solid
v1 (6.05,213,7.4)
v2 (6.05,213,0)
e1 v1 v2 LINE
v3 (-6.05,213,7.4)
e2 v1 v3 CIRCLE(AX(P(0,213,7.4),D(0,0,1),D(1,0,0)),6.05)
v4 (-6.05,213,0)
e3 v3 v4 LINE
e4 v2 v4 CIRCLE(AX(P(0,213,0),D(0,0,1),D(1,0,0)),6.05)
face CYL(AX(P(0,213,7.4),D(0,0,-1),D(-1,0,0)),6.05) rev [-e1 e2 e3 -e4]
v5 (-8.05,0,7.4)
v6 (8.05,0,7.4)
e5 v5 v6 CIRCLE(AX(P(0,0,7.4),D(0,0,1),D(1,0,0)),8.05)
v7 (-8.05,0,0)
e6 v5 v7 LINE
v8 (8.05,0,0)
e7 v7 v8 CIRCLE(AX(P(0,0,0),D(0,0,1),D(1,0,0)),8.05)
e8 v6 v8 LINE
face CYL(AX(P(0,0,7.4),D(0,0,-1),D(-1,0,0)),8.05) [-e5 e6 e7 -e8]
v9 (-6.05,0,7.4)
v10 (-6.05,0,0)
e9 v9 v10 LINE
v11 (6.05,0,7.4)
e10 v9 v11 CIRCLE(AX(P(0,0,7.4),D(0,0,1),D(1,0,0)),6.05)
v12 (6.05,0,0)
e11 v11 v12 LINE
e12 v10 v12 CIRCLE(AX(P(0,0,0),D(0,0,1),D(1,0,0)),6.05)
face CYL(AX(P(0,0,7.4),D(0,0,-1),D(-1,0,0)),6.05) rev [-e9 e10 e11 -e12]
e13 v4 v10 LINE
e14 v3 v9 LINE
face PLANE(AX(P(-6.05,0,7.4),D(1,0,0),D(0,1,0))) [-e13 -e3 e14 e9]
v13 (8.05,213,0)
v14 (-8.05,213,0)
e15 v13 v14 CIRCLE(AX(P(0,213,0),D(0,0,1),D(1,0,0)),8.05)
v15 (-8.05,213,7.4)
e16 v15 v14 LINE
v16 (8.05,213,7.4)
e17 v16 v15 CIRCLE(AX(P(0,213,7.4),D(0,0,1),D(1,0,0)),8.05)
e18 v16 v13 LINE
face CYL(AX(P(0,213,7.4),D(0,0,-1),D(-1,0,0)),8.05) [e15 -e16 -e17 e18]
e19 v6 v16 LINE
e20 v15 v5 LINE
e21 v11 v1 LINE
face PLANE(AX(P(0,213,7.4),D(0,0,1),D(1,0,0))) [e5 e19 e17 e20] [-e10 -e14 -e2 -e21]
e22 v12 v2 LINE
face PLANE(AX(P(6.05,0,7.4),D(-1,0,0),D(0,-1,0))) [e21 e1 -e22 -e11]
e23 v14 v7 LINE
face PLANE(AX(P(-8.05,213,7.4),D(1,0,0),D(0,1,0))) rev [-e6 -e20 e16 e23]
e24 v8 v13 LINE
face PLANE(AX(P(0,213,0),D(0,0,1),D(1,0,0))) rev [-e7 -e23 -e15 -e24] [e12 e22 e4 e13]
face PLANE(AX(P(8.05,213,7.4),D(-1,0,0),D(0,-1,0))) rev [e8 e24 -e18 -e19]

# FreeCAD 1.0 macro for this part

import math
import FreeCAD as App
import Part
import Sketcher
from FreeCAD import Vector

doc = App.newDocument("Part")
body = doc.addObject("PartDesign::Body", "Body")

# Sketch on XY plane
sketch1 = doc.addObject("Sketcher::SketchObject", "Sketch")
body.addObject(sketch1)
sketch1.AttachmentSupport = (doc.XY_Plane, [""])
sketch1.MapMode = "FlatFace"
sketch1.addGeometry([
    Part.LineSegment(Vector(-8, 213, 0), Vector(-8, 0, 0)),  # 0
    Part.ArcOfCircle(Part.Circle(Vector(0, 0, 0), Vector(0, 0, 1), 8), math.radians(180), math.radians(360)),  # 1
    Part.LineSegment(Vector(8, 0, 0), Vector(8, 213, 0)),  # 2
    Part.ArcOfCircle(Part.Circle(Vector(0, 213, 0), Vector(0, 0, 1), 8), math.radians(0), math.radians(180)),  # 3
    Part.ArcOfCircle(Part.Circle(Vector(0, 0, 0), Vector(0, 0, 1), 6), math.radians(180), math.radians(360)),  # 4
    Part.LineSegment(Vector(-6, 0, 0), Vector(-6, 213, 0)),  # 5
    Part.ArcOfCircle(Part.Circle(Vector(0, 213, 0), Vector(0, 0, 1), 6), math.radians(0), math.radians(180)),  # 6
    Part.LineSegment(Vector(6, 213, 0), Vector(6, 0, 0)),  # 7
], False)
sketch1.addConstraint([
    Sketcher.Constraint("Tangent", 0, 2, 1, 1),
    Sketcher.Constraint("Tangent", 1, 2, 2, 1),
    Sketcher.Constraint("Tangent", 2, 2, 3, 1),
    Sketcher.Constraint("Tangent", 3, 2, 0, 1),
    Sketcher.Constraint("Tangent", 4, 1, 5, 1),
    Sketcher.Constraint("Tangent", 5, 2, 6, 2),
    Sketcher.Constraint("Tangent", 6, 1, 7, 1),
    Sketcher.Constraint("Tangent", 7, 2, 4, 2),
    Sketcher.Constraint("Vertical", 0),
    Sketcher.Constraint("Vertical", 2),
    Sketcher.Constraint("Vertical", 5),
    Sketcher.Constraint("Vertical", 7),
    Sketcher.Constraint("Coincident", 1, 3, -1, 1),
    Sketcher.Constraint("Coincident", 4, 3, -1, 1),
    Sketcher.Constraint("Horizontal", 6, 3, 2, 2),
    Sketcher.Constraint("DistanceY", 0, 2, 0, 1, 213.0),
    Sketcher.Constraint("Radius", 1, 8.05),
    Sketcher.Constraint("Radius", 4, 6.05),
])
pad1 = doc.addObject("PartDesign::Pad", "Pad")
body.addObject(pad1)
pad1.Profile = sketch1
pad1.Length = 7.4

doc.recompute()
